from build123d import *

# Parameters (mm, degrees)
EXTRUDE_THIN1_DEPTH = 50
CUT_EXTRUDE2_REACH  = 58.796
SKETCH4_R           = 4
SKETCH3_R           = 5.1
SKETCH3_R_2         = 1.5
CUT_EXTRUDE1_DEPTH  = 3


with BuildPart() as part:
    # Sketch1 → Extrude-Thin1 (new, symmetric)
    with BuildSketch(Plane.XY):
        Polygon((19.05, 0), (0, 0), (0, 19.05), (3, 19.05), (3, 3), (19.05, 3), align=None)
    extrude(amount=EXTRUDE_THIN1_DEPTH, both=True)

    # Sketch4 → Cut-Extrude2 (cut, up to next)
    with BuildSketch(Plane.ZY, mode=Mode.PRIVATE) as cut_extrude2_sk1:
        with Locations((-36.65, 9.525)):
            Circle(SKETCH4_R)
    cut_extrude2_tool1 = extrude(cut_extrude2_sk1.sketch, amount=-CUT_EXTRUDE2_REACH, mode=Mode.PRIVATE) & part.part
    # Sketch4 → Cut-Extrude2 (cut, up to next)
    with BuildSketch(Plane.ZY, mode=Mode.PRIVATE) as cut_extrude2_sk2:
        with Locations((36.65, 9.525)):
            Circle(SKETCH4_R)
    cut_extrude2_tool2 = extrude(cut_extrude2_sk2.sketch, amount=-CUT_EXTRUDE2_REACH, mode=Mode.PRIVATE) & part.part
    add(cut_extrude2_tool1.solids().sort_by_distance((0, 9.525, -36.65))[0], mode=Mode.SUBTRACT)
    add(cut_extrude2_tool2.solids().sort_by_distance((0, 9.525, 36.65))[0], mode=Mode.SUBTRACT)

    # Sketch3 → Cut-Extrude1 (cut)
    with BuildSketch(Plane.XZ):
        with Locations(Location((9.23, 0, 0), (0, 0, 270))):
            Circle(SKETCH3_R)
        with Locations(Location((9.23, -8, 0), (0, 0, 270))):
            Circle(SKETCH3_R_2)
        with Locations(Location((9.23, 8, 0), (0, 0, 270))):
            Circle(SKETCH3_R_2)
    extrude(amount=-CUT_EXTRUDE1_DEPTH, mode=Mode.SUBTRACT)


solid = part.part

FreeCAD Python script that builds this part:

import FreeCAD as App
import Part
import Sketcher

doc = App.newDocument("Part")
body = doc.addObject("PartDesign::Body", "Body")

# Sketch on XY plane
sketch1 = doc.addObject("Sketcher::SketchObject", "Sketch")
body.addObject(sketch1)
sketch1.AttachmentSupport = (doc.XY_Plane, [""])
sketch1.MapMode = "FlatFace"
sketch1.addGeometry([
    Part.LineSegment(App.Vector(0, 0, 0), App.Vector(19.1, 0, 0)),  # 0
    Part.LineSegment(App.Vector(19.1, 0, 0), App.Vector(19.1, 3, 0)),  # 1
    Part.LineSegment(App.Vector(19.1, 3, 0), App.Vector(3, 3, 0)),  # 2
    Part.LineSegment(App.Vector(3, 3, 0), App.Vector(3, 19.1, 0)),  # 3
    Part.LineSegment(App.Vector(3, 19.1, 0), App.Vector(0, 19.1, 0)),  # 4
    Part.LineSegment(App.Vector(0, 19.1, 0), App.Vector(0, 0, 0)),  # 5
], False)
sketch1.addConstraint([
    Sketcher.Constraint("Coincident", 0, 2, 1, 1),
    Sketcher.Constraint("Coincident", 1, 2, 2, 1),
    Sketcher.Constraint("Coincident", 2, 2, 3, 1),
    Sketcher.Constraint("Coincident", 3, 2, 4, 1),
    Sketcher.Constraint("Coincident", 4, 2, 5, 1),
    Sketcher.Constraint("Coincident", 5, 2, 0, 1),
    Sketcher.Constraint("Horizontal", 0),
    Sketcher.Constraint("Vertical", 1),
    Sketcher.Constraint("Horizontal", 2),
    Sketcher.Constraint("Vertical", 3),
    Sketcher.Constraint("Horizontal", 4),
    Sketcher.Constraint("Vertical", 5),
    Sketcher.Constraint("Coincident", 5, 2, -1, 1),
    Sketcher.Constraint("Equal", 4, 1),
    Sketcher.Constraint("Equal", 2, 3),
    Sketcher.Constraint("DistanceX", 4, 2, 4, 1, 3.0),
    Sketcher.Constraint("DistanceX", 0, 1, 0, 2, 19.05),
])
pad1 = doc.addObject("PartDesign::Pad", "Pad")
body.addObject(pad1)
pad1.Profile = sketch1
pad1.Length = 100
pad1.Midplane = True

# Sketch on YZ plane
sketch2 = doc.addObject("Sketcher::SketchObject", "Sketch001")
body.addObject(sketch2)
sketch2.AttachmentSupport = (doc.YZ_Plane, [""])
sketch2.MapMode = "FlatFace"
sketch2.addGeometry(Part.Circle(App.Vector(9.5, -36.6, 0), App.Vector(0, 0, 1), 4), False)
sketch2.addConstraint([
    Sketcher.Constraint("Diameter", 0, 8.0),
    Sketcher.Constraint("DistanceY", 0, 3, -1, 1, 36.65),
    Sketcher.Constraint("DistanceX", -1, 1, 0, 3, 9.525),
])
pocket1 = doc.addObject("PartDesign::Pocket", "Pocket")
body.addObject(pocket1)
pocket1.Profile = sketch2
pocket1.Type = "UpToFirst"
pocket1.Reversed = True

# Sketch on YZ plane
sketch3 = doc.addObject("Sketcher::SketchObject", "Sketch002")
body.addObject(sketch3)
sketch3.AttachmentSupport = (doc.YZ_Plane, [""])
sketch3.MapMode = "FlatFace"
sketch3.addGeometry(Part.Circle(App.Vector(9.5, 36.6, 0), App.Vector(0, 0, 1), 4), False)
sketch3.addConstraint([
    Sketcher.Constraint("Diameter", 0, 8.0),
    Sketcher.Constraint("DistanceY", -1, 1, 0, 3, 36.65),
    Sketcher.Constraint("DistanceX", -1, 1, 0, 3, 9.525),
])
pocket2 = doc.addObject("PartDesign::Pocket", "Pocket001")
body.addObject(pocket2)
pocket2.Profile = sketch3
pocket2.Type = "UpToFirst"
pocket2.Reversed = True

# Sketch on XZ plane
sketch4 = doc.addObject("Sketcher::SketchObject", "Sketch003")
body.addObject(sketch4)
sketch4.AttachmentSupport = (doc.XZ_Plane, [""])
sketch4.MapMode = "FlatFace"
sketch4.addGeometry([
    Part.Circle(App.Vector(9.2, 0, 0), App.Vector(0, 0, 1), 5.1),
    Part.Circle(App.Vector(9.2, -8, 0), App.Vector(0, 0, 1), 1.5),
    Part.Circle(App.Vector(9.2, 8, 0), App.Vector(0, 0, 1), 1.5),
], False)
sketch4.addConstraint([
    Sketcher.Constraint("Equal", 1, 2),
    Sketcher.Constraint("Symmetric", 1, 3, 2, 3, -1),
    Sketcher.Constraint("PointOnObject", 0, 3, -1),
    Sketcher.Constraint("Vertical", 0, 3, 1, 3),
    Sketcher.Constraint("Diameter", 1, 3.0),
    Sketcher.Constraint("Diameter", 0, 10.2),
    Sketcher.Constraint("DistanceY", 1, 3, -1, 1, 8.0),
    Sketcher.Constraint("DistanceX", -1, 1, 0, 3, 9.23),
])
pocket3 = doc.addObject("PartDesign::Pocket", "Pocket002")
body.addObject(pocket3)
pocket3.Profile = sketch4
pocket3.Length = 3

doc.recompute()
